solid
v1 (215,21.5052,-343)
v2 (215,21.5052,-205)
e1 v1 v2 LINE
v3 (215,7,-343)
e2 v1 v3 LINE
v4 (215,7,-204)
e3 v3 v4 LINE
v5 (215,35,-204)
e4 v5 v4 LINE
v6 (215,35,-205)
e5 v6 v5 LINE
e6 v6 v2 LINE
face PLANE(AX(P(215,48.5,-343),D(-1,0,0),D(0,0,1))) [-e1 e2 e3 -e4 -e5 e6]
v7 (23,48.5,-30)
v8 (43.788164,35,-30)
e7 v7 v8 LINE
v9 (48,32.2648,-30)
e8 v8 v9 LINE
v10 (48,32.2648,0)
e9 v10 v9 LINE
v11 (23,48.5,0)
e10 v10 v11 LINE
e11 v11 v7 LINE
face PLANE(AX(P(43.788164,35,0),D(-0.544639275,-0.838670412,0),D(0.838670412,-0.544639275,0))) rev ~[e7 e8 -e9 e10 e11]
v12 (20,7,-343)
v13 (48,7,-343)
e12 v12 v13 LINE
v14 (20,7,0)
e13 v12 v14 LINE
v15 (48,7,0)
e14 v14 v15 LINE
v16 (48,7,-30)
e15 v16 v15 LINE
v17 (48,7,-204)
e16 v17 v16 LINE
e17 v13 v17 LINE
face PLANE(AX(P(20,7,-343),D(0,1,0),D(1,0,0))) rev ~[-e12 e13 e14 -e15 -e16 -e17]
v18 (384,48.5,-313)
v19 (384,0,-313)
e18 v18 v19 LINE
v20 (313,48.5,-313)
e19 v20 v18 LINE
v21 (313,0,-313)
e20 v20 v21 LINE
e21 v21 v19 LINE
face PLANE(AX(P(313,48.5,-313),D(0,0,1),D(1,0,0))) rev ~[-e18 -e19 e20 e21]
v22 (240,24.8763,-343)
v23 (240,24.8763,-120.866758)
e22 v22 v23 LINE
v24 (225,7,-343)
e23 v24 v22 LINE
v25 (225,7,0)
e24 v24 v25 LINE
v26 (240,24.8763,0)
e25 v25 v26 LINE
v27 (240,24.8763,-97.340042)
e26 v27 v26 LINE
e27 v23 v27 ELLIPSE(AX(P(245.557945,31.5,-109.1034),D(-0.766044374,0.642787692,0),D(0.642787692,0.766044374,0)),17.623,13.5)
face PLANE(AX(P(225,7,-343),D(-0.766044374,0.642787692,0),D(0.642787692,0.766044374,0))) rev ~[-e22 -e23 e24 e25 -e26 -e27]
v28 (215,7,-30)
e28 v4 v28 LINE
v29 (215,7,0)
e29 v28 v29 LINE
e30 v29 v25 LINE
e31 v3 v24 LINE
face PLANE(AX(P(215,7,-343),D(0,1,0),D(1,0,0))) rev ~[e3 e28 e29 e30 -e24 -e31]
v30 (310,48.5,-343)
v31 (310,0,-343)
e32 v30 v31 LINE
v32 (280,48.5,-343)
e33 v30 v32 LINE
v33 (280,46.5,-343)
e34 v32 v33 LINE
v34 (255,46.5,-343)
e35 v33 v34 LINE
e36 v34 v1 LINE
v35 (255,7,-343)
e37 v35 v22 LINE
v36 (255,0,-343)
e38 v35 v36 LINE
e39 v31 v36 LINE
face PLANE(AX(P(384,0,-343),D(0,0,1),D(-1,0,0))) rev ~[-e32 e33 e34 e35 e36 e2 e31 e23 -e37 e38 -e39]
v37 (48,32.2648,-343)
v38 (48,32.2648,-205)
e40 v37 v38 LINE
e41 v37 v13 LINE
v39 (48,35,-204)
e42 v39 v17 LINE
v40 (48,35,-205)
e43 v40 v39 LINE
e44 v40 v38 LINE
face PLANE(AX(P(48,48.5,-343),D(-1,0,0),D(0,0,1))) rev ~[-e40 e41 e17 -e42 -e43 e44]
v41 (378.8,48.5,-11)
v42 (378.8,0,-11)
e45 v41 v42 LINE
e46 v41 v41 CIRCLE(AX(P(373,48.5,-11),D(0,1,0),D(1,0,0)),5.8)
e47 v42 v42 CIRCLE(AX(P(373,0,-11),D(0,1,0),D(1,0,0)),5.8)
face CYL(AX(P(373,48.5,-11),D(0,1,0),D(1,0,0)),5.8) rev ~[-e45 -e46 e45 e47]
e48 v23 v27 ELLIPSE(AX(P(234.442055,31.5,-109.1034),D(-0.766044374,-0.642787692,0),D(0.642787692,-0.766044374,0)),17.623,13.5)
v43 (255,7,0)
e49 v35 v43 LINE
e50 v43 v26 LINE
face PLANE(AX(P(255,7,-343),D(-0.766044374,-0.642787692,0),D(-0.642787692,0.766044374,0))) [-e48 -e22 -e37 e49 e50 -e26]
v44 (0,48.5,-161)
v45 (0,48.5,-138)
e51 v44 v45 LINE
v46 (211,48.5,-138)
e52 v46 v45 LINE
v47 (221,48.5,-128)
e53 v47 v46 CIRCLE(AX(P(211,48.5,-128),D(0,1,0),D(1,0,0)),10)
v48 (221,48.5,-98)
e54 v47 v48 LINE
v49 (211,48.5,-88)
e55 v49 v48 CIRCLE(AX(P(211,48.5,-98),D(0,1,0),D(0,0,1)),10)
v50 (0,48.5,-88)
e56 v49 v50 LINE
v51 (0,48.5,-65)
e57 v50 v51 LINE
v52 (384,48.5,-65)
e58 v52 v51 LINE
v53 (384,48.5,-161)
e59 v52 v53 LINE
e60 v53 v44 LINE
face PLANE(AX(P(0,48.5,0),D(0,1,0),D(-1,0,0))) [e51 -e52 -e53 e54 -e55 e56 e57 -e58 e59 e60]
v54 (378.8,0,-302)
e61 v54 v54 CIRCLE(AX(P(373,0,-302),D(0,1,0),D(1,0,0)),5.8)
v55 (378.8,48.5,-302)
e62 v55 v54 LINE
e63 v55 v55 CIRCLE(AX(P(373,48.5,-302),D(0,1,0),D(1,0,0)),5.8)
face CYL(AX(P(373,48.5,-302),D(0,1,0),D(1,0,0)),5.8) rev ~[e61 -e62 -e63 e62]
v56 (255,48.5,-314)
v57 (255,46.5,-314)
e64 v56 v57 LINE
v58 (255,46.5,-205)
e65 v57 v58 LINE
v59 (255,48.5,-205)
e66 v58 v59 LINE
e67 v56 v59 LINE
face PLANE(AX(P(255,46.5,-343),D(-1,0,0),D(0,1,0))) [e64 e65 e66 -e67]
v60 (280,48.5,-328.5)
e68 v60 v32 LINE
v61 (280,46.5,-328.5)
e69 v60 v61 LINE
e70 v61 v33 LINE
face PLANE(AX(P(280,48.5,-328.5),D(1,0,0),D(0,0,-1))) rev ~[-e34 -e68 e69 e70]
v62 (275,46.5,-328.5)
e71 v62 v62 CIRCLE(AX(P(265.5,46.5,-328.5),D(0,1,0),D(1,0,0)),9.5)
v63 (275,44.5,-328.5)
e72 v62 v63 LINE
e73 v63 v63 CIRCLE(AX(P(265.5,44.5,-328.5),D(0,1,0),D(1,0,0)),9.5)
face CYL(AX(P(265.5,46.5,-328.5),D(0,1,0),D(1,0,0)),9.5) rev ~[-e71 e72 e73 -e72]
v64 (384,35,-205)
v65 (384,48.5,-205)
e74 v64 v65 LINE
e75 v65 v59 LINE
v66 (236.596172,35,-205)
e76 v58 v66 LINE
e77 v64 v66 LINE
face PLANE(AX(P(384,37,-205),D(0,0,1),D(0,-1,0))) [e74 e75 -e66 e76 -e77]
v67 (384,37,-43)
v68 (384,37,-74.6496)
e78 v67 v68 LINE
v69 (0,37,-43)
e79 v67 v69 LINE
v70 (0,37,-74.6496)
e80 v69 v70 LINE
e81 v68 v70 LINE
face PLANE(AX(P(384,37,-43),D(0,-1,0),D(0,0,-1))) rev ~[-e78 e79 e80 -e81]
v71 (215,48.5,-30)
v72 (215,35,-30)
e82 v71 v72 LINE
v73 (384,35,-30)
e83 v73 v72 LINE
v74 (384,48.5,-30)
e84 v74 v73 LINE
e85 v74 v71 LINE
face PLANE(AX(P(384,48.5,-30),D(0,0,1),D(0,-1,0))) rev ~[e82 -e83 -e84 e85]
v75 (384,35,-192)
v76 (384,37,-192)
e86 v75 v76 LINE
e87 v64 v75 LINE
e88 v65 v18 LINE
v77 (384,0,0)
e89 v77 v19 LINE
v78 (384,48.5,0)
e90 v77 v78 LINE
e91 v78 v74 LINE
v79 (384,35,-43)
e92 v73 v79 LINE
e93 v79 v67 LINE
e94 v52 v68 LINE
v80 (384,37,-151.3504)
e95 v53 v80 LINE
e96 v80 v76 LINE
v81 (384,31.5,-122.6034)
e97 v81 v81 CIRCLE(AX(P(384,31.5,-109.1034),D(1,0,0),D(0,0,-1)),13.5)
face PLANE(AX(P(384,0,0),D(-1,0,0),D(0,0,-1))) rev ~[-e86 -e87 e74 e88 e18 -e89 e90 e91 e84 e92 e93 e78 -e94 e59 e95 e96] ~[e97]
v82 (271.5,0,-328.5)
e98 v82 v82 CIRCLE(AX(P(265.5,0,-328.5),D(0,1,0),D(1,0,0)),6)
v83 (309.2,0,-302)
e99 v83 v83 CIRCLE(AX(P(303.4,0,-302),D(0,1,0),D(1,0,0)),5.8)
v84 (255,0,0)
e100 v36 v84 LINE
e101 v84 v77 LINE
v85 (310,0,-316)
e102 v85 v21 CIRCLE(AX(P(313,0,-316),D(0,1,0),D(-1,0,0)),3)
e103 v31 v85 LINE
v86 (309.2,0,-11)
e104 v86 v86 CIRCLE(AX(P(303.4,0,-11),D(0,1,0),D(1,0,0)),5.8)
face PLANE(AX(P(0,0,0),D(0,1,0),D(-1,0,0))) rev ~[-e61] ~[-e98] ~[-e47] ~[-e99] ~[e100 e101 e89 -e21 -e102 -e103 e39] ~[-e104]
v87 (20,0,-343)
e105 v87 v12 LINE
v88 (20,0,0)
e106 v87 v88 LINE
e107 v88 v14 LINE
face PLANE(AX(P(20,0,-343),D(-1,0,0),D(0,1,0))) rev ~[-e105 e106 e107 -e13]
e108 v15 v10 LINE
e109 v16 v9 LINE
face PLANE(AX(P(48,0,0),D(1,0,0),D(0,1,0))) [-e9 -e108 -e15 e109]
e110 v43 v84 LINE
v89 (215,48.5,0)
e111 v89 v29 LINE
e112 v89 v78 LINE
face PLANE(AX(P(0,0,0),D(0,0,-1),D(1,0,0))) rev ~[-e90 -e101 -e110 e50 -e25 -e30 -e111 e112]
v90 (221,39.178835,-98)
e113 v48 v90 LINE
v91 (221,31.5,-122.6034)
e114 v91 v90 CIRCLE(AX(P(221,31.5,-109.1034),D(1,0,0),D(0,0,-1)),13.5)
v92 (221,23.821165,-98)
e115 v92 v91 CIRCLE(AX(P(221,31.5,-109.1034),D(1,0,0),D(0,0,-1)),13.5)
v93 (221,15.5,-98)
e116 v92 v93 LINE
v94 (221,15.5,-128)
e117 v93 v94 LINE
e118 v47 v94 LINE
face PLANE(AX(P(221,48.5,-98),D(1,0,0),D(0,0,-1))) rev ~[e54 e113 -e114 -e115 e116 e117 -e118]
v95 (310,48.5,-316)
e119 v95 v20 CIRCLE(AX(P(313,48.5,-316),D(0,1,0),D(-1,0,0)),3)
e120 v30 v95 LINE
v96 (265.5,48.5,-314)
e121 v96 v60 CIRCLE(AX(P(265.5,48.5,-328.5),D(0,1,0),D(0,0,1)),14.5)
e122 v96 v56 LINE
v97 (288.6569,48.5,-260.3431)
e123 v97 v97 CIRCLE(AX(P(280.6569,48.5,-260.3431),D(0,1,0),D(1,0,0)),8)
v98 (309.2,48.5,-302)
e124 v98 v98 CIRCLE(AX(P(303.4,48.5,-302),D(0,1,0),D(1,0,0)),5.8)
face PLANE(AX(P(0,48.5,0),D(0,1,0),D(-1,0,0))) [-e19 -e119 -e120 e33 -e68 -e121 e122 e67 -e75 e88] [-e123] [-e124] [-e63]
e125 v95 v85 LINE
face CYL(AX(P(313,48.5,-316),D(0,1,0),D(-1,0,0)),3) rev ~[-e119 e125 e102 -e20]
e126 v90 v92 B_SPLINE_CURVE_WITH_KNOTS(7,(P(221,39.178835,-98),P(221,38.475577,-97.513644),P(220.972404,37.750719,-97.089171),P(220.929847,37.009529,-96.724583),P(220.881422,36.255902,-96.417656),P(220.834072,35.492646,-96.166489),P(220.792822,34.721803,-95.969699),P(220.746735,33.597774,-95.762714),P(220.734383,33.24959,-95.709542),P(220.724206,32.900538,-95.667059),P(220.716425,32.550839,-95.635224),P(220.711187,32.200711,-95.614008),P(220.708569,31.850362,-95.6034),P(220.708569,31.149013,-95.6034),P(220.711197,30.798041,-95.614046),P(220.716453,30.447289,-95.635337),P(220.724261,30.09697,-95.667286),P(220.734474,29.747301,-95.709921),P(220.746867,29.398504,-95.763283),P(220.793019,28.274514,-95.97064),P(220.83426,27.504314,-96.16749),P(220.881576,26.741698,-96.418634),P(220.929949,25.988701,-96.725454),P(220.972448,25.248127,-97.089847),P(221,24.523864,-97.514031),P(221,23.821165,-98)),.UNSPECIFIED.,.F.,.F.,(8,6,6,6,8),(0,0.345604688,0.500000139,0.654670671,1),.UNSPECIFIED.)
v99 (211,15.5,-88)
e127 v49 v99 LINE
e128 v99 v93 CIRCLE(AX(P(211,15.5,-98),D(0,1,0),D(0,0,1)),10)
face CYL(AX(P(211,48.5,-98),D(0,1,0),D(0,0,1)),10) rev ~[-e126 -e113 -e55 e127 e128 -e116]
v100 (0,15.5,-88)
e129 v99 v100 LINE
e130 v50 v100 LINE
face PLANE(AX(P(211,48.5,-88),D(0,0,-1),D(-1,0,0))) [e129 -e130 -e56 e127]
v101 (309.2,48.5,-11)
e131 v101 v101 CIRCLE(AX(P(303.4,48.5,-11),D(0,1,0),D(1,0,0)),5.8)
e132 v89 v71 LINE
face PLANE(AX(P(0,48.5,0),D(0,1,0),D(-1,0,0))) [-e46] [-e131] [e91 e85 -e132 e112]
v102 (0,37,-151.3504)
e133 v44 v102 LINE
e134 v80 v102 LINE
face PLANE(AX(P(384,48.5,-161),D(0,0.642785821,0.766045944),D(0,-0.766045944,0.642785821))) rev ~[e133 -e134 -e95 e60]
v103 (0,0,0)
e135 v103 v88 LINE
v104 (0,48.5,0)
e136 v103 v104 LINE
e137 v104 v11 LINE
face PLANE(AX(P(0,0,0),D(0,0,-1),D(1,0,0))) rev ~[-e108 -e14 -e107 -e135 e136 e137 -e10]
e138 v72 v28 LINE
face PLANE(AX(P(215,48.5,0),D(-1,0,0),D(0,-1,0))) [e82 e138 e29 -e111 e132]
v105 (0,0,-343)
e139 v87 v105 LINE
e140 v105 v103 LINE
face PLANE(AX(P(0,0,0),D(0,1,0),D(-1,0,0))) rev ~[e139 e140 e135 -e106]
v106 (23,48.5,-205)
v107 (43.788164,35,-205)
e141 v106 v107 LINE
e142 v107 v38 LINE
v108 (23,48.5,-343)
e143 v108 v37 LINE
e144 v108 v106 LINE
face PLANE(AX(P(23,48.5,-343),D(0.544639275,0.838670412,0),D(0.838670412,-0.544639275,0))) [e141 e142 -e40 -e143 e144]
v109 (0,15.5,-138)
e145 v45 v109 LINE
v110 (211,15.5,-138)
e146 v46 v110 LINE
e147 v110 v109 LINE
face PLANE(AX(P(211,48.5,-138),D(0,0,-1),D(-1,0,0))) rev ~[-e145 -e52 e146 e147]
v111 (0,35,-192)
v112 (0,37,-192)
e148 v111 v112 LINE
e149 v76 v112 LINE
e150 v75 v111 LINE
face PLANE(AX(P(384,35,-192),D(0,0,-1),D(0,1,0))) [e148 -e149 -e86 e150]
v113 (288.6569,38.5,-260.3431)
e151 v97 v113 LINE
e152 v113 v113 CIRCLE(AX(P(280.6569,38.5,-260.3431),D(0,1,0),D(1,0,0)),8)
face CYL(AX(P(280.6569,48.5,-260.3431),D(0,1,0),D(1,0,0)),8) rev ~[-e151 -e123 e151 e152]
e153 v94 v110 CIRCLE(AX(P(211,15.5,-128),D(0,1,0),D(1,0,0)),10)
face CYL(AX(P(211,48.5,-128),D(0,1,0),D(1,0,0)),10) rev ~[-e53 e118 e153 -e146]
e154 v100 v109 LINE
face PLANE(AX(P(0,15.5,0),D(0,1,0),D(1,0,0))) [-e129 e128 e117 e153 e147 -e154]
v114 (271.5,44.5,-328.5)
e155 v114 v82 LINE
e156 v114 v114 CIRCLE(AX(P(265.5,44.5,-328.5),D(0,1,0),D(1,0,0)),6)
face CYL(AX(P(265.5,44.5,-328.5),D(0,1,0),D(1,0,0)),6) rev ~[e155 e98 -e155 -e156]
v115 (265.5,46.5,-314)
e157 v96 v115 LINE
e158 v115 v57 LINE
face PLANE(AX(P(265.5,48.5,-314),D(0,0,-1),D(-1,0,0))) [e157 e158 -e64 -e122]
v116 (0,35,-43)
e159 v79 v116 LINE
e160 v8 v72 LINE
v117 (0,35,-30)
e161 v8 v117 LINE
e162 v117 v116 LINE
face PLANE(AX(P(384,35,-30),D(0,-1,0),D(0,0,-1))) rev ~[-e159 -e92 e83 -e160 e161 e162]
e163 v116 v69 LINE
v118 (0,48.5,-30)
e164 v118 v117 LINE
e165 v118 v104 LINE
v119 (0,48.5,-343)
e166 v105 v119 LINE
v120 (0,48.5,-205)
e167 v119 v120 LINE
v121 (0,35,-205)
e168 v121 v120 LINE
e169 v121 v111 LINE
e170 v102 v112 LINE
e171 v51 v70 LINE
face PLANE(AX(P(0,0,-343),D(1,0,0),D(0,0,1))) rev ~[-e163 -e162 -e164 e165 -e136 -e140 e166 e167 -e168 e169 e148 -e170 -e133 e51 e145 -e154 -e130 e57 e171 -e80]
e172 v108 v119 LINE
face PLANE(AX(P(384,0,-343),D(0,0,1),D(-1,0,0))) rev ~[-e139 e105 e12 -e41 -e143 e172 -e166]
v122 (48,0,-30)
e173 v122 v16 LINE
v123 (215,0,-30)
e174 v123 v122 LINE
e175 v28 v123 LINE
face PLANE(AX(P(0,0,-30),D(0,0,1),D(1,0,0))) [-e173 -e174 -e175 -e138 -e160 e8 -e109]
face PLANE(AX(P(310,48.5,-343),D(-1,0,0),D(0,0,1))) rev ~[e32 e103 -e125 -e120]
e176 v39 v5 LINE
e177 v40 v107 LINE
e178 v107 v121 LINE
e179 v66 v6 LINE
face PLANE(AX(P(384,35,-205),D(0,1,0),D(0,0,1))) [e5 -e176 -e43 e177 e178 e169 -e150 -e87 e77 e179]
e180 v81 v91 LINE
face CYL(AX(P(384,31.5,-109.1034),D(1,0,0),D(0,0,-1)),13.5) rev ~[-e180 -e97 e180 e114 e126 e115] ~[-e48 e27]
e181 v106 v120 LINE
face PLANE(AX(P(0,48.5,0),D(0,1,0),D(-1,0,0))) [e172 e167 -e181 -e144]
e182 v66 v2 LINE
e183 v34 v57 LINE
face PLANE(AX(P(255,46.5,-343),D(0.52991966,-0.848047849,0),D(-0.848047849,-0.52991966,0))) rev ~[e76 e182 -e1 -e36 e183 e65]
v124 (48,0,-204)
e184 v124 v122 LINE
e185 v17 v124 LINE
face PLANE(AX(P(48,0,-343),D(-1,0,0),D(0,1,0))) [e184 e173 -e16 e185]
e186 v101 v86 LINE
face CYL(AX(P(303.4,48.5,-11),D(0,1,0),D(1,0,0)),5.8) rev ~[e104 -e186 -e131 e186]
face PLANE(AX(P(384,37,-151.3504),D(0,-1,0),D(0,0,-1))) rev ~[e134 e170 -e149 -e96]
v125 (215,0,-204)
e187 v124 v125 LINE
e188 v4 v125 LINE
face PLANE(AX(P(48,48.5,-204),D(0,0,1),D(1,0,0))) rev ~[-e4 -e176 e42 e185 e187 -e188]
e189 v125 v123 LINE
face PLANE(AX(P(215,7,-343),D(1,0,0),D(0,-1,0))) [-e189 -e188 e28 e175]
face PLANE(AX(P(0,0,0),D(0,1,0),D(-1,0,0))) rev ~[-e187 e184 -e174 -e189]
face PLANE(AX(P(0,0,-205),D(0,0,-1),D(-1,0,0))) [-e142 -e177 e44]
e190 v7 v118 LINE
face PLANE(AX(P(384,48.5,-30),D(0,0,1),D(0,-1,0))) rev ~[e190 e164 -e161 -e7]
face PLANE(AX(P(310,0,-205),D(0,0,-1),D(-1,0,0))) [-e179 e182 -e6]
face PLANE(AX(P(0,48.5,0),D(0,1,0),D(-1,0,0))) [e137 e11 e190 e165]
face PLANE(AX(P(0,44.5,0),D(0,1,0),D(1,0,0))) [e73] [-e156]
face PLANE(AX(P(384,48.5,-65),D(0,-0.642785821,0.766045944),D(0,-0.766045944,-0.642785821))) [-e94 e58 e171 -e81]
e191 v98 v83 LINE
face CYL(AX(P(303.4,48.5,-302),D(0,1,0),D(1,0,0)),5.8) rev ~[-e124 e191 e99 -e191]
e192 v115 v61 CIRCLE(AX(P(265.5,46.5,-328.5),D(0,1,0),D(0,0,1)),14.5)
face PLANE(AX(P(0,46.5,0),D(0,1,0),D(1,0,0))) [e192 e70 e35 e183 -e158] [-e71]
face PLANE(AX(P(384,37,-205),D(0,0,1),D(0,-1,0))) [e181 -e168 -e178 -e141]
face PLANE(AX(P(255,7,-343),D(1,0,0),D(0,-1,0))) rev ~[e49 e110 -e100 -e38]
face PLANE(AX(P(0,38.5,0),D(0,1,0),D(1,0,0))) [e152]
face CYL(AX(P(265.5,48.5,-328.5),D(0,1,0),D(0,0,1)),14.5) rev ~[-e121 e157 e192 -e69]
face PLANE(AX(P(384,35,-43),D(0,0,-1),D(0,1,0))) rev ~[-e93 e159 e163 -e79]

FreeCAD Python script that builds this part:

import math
import FreeCAD as App
import Part
import Sketcher
from FreeCAD import Vector
Q = App.Units.Quantity


def add_polygon(sketch, points):
    """Adds a closed chain of lines whose ends are joined by coincident constraints."""
    first, n = sketch.GeometryCount, len(points)
    for a, b in zip(points, points[1:] + points[:1]):
        sketch.addGeometry(Part.LineSegment(App.Vector(*a, 0), App.Vector(*b, 0)), False)
    for i in range(n):
        sketch.addConstraint(Sketcher.Constraint("Coincident", first + i, 2, first + (i + 1) % n, 1))

doc = App.newDocument("Part")
body = doc.addObject("PartDesign::Body", "Body")

sketch1 = body.newObject("Sketcher::SketchObject", "Sketch")
sketch1.AttachmentSupport = (doc.getObject("XZ_Plane"), [""])
sketch1.MapMode = "FlatFace"
add_polygon(sketch1, [(0, -343), (0, 0), (384, 0), (384, -343)])
sketch1.addConstraint(Sketcher.Constraint("Vertical", 0))
sketch1.addConstraint(Sketcher.Constraint("Horizontal", 1))
sketch1.addConstraint(Sketcher.Constraint("Vertical", 2))
sketch1.addConstraint(Sketcher.Constraint("Horizontal", 3))
sketch1.addConstraint(Sketcher.Constraint("Coincident", 0, 2, -1, 1))
sketch1.addConstraint(Sketcher.Constraint("DistanceX", 1, 1, 1, 2, 384.0))
sketch1.addConstraint(Sketcher.Constraint("DistanceY", 0, 1, 0, 2, 343.0))
pad1 = body.newObject("PartDesign::Pad", "Pad")
pad1.Profile = sketch1
pad1.Length = 48.5
pad1.Reversed = True

sketch2 = body.newObject("Sketcher::SketchObject", "Sketch001")
sketch2.AttachmentSupport = (doc.getObject("YZ_Plane"), [""])
sketch2.MapMode = "FlatFace"
sketch2.AttachmentOffset = App.Placement(Vector(0, 0, 384), App.Rotation())
add_polygon(sketch2, [(48.5, -65), (48.5, -30), (35, -30), (35, -43), (37, -43), (37, -74.6496)])
sketch2.addConstraint(Sketcher.Constraint("Vertical", 0))
sketch2.addConstraint(Sketcher.Constraint("Horizontal", 1))
sketch2.addConstraint(Sketcher.Constraint("Vertical", 2))
sketch2.addConstraint(Sketcher.Constraint("Horizontal", 3))
sketch2.addConstraint(Sketcher.Constraint("Vertical", 4))
sketch2.addConstraint(Sketcher.Constraint("DistanceX", 3, 1, 3, 2, 2.0))
sketch2.addConstraint(Sketcher.Constraint("DistanceY", 0, 1, 0, 2, 35.0))
sketch2.addConstraint(Sketcher.Constraint("DistanceY", 2, 2, 2, 1, 13.0))
sketch2.addConstraint(Sketcher.Constraint("DistanceX", -1, 1, 1, 2, 35.0))
sketch2.addConstraint(Sketcher.Constraint("Angle", 5, Q("39.9999 deg")))
sketch2.addConstraint(Sketcher.Constraint("DistanceX", 1, 2, 1, 1, 13.5))
sketch2.addConstraint(Sketcher.Constraint("DistanceY", 0, 2, -1, 1, 30.0))
pocket1 = body.newObject("PartDesign::Pocket", "Pocket")
pocket1.Profile = sketch2
pocket1.Type = "ThroughAll"

sketch3 = body.newObject("Sketcher::SketchObject", "Sketch002")
sketch3.AttachmentSupport = (doc.getObject("YZ_Plane"), [""])
sketch3.MapMode = "FlatFace"
sketch3.AttachmentOffset = App.Placement(Vector(0, 0, 384), App.Rotation())
add_polygon(sketch3, [(48.5, -205), (48.5, -161), (37, -151.3504), (37, -192), (35, -192), (35, -205)])
sketch3.addConstraint(Sketcher.Constraint("Vertical", 0))
sketch3.addConstraint(Sketcher.Constraint("Vertical", 2))
sketch3.addConstraint(Sketcher.Constraint("Horizontal", 3))
sketch3.addConstraint(Sketcher.Constraint("Vertical", 4))
sketch3.addConstraint(Sketcher.Constraint("Horizontal", 5))
sketch3.addConstraint(Sketcher.Constraint("DistanceY", 0, 1, 0, 2, 44.0))
sketch3.addConstraint(Sketcher.Constraint("DistanceX", 3, 2, 3, 1, 2.0))
sketch3.addConstraint(Sketcher.Constraint("DistanceY", 4, 2, 4, 1, 13.0))
sketch3.addConstraint(Sketcher.Constraint("Angle", 1, Q("140.0001 deg")))
sketch3.addConstraint(Sketcher.Constraint("DistanceX", 5, 1, 5, 2, 13.5))
sketch3.addConstraint(Sketcher.Constraint("DistanceY", 0, 2, -1, 1, 161.0))
sketch3.addConstraint(Sketcher.Constraint("DistanceX", -1, 1, 1, 2, 37.0))
pocket2 = body.newObject("PartDesign::Pocket", "Pocket001")
pocket2.Profile = sketch3
pocket2.Type = "ThroughAll"

sketch4 = body.newObject("Sketcher::SketchObject", "Sketch003")
sketch4.AttachmentSupport = (doc.getObject("XZ_Plane"), [""])
sketch4.MapMode = "FlatFace"
sketch4.AttachmentOffset = App.Placement(Vector(0, 0, -48.5), App.Rotation())
sketch4.addGeometry(Part.LineSegment(Vector(384, -343, 0), Vector(310, -343, 0)), False)
sketch4.addGeometry(Part.LineSegment(Vector(310, -343, 0), Vector(310, -316, 0)), False)
sketch4.addGeometry(Part.ArcOfCircle(Part.Circle(Vector(313, -316, 0), Vector(0, 0, 1), 3), math.radians(90), math.radians(180)), False)
sketch4.addGeometry(Part.LineSegment(Vector(313, -313, 0), Vector(384, -313, 0)), False)
sketch4.addGeometry(Part.LineSegment(Vector(384, -313, 0), Vector(384, -343, 0)), False)
sketch4.addConstraint(Sketcher.Constraint("Coincident", 0, 2, 1, 1))
sketch4.addConstraint(Sketcher.Constraint("Tangent", 1, 2, 2, 2))
sketch4.addConstraint(Sketcher.Constraint("Tangent", 2, 1, 3, 1))
sketch4.addConstraint(Sketcher.Constraint("Coincident", 3, 2, 4, 1))
sketch4.addConstraint(Sketcher.Constraint("Coincident", 4, 2, 0, 1))
sketch4.addConstraint(Sketcher.Constraint("Horizontal", 0))
sketch4.addConstraint(Sketcher.Constraint("Vertical", 1))
sketch4.addConstraint(Sketcher.Constraint("Horizontal", 3))
sketch4.addConstraint(Sketcher.Constraint("Vertical", 4))
sketch4.addConstraint(Sketcher.Constraint("Radius", 2, 3.0))
sketch4.addConstraint(Sketcher.Constraint("DistanceY", 4, 2, 4, 1, 30.0))
sketch4.addConstraint(Sketcher.Constraint("DistanceX", 0, 2, 0, 1, 74.0))
sketch4.addConstraint(Sketcher.Constraint("DistanceX", -1, 1, 2, 3, 313.0))
sketch4.addConstraint(Sketcher.Constraint("DistanceY", 2, 3, -1, 1, 316.0))
pocket3 = body.newObject("PartDesign::Pocket", "Pocket002")
pocket3.Profile = sketch4
pocket3.Type = "ThroughAll"
pocket3.Reversed = True

sketch5 = body.newObject("Sketcher::SketchObject", "Sketch004")
sketch5.AttachmentSupport = (doc.getObject("XY_Plane"), [""])
sketch5.MapMode = "FlatFace"
sketch5.AttachmentOffset = App.Placement(Vector(0, 0, -343), App.Rotation())
add_polygon(sketch5, [(215, 0), (215, 7), (225, 7), (240, 24.8763), (255, 7), (255, 0)])
sketch5.addConstraint(Sketcher.Constraint("Vertical", 0))
sketch5.addConstraint(Sketcher.Constraint("Horizontal", 1))
sketch5.addConstraint(Sketcher.Constraint("Vertical", 4))
sketch5.addConstraint(Sketcher.Constraint("Horizontal", 5))
sketch5.addConstraint(Sketcher.Constraint("PointOnObject", 4, 2, -1))
sketch5.addConstraint(Sketcher.Constraint("Horizontal", 1, 2, 3, 2))
sketch5.addConstraint(Sketcher.Constraint("Equal", 2, 3))
sketch5.addConstraint(Sketcher.Constraint("DistanceX", 1, 1, 1, 2, 10.0))
sketch5.addConstraint(Sketcher.Constraint("DistanceX", 5, 2, 5, 1, 40.0))
sketch5.addConstraint(Sketcher.Constraint("DistanceY", 0, 1, 0, 2, 7.0))
sketch5.addConstraint(Sketcher.Constraint("Angle", 2, Q("50 deg")))
sketch5.addConstraint(Sketcher.Constraint("DistanceX", -1, 1, 0, 2, 215.0))
pocket4 = body.newObject("PartDesign::Pocket", "Pocket003")
pocket4.Profile = sketch5
pocket4.Type = "ThroughAll"
pocket4.Reversed = True

sketch6 = body.newObject("Sketcher::SketchObject", "Sketch005")
sketch6.AttachmentSupport = (doc.getObject("XZ_Plane"), [""])
sketch6.MapMode = "FlatFace"
sketch6.AttachmentOffset = App.Placement(Vector(0, 0, -48.5), App.Rotation())
add_polygon(sketch6, [(215, -204), (215, -343), (48, -343), (48, -204)])
sketch6.addConstraint(Sketcher.Constraint("Vertical", 0))
sketch6.addConstraint(Sketcher.Constraint("Horizontal", 1))
sketch6.addConstraint(Sketcher.Constraint("Vertical", 2))
sketch6.addConstraint(Sketcher.Constraint("Horizontal", 3))
sketch6.addConstraint(Sketcher.Constraint("DistanceX", 1, 2, 1, 1, 167.0))
sketch6.addConstraint(Sketcher.Constraint("DistanceY", 0, 2, 0, 1, 139.0))
sketch6.addConstraint(Sketcher.Constraint("DistanceX", -1, 1, 0, 2, 215.0))
sketch6.addConstraint(Sketcher.Constraint("DistanceY", 0, 2, -1, 1, 343.0))
pocket5 = body.newObject("PartDesign::Pocket", "Pocket004")
pocket5.Profile = sketch6
pocket5.Type = "ThroughAll"
pocket5.Reversed = True

sketch7 = body.newObject("Sketcher::SketchObject", "Sketch006")
sketch7.AttachmentSupport = (doc.getObject("XY_Plane"), [""])
sketch7.MapMode = "FlatFace"
sketch7.AttachmentOffset = App.Placement(Vector(0, 0, -343), App.Rotation())
add_polygon(sketch7, [(48, 0), (20, 0), (20, 7), (48, 7)])
sketch7.addConstraint(Sketcher.Constraint("Horizontal", 0))
sketch7.addConstraint(Sketcher.Constraint("Vertical", 1))
sketch7.addConstraint(Sketcher.Constraint("Horizontal", 2))
sketch7.addConstraint(Sketcher.Constraint("Vertical", 3))
sketch7.addConstraint(Sketcher.Constraint("PointOnObject", 0, 2, -1))
sketch7.addConstraint(Sketcher.Constraint("DistanceY", 1, 1, 1, 2, 7.0))
sketch7.addConstraint(Sketcher.Constraint("DistanceX", 0, 2, 0, 1, 28.0))
sketch7.addConstraint(Sketcher.Constraint("DistanceX", -1, 1, 0, 2, 20.0))
pocket6 = body.newObject("PartDesign::Pocket", "Pocket005")
pocket6.Profile = sketch7
pocket6.Type = "ThroughAll"
pocket6.Reversed = True

sketch8 = body.newObject("Sketcher::SketchObject", "Sketch007")
sketch8.AttachmentSupport = (doc.getObject("XZ_Plane"), [""])
sketch8.MapMode = "FlatFace"
sketch8.AttachmentOffset = App.Placement(Vector(0, 0, -48.5), App.Rotation())
sketch8.addGeometry(Part.LineSegment(Vector(221, -98, 0), Vector(221, -128, 0)), False)
sketch8.addGeometry(Part.ArcOfCircle(Part.Circle(Vector(211, -128, 0), Vector(0, 0, 1), 10), math.radians(-90), math.radians(0)), False)
sketch8.addGeometry(Part.LineSegment(Vector(211, -138, 0), Vector(0, -138, 0)), False)
sketch8.addGeometry(Part.LineSegment(Vector(0, -138, 0), Vector(0, -88, 0)), False)
sketch8.addGeometry(Part.LineSegment(Vector(0, -88, 0), Vector(211, -88, 0)), False)
sketch8.addGeometry(Part.ArcOfCircle(Part.Circle(Vector(211, -98, 0), Vector(0, 0, 1), 10), math.radians(0), math.radians(90)), False)
sketch8.addConstraint(Sketcher.Constraint("Tangent", 0, 2, 1, 2))
sketch8.addConstraint(Sketcher.Constraint("Tangent", 1, 1, 2, 1))
sketch8.addConstraint(Sketcher.Constraint("Coincident", 2, 2, 3, 1))
sketch8.addConstraint(Sketcher.Constraint("Coincident", 3, 2, 4, 1))
sketch8.addConstraint(Sketcher.Constraint("Tangent", 4, 2, 5, 2))
sketch8.addConstraint(Sketcher.Constraint("Tangent", 5, 1, 0, 1))
sketch8.addConstraint(Sketcher.Constraint("Vertical", 0))
sketch8.addConstraint(Sketcher.Constraint("Horizontal", 2))
sketch8.addConstraint(Sketcher.Constraint("Vertical", 3))
sketch8.addConstraint(Sketcher.Constraint("Horizontal", 4))
sketch8.addConstraint(Sketcher.Constraint("Equal", 1, 5))
sketch8.addConstraint(Sketcher.Constraint("PointOnObject", 2, 2, -2))
sketch8.addConstraint(Sketcher.Constraint("Radius", 1, 10.0))
sketch8.addConstraint(Sketcher.Constraint("DistanceX", 2, 2, 2, 1, 211.0))
sketch8.addConstraint(Sketcher.Constraint("DistanceY", 0, 2, 0, 1, 30.0))
sketch8.addConstraint(Sketcher.Constraint("DistanceY", 1, 3, -1, 1, 128.0))
pocket7 = body.newObject("PartDesign::Pocket", "Pocket006")
pocket7.Profile = sketch8
pocket7.Length = 33
pocket7.Reversed = True

sketch9 = body.newObject("Sketcher::SketchObject", "Sketch008")
sketch9.AttachmentSupport = (doc.getObject("YZ_Plane"), [""])
sketch9.MapMode = "FlatFace"
sketch9.AttachmentOffset = App.Placement(Vector(0, 0, 384), App.Rotation())
sketch9.addGeometry(Part.Circle(Vector(31.5, -109.1034, 0), Vector(0, 0, 1), 13.5), False)
sketch9.addConstraint(Sketcher.Constraint("Diameter", 0, 27.0))
sketch9.addConstraint(Sketcher.Constraint("DistanceX", -1, 1, 0, 3, 31.5))
sketch9.addConstraint(Sketcher.Constraint("DistanceY", 0, 3, -1, 1, 109.1034))
pocket8 = body.newObject("PartDesign::Pocket", "Pocket007")
pocket8.Profile = sketch9
pocket8.Type = "ThroughAll"

sketch10 = body.newObject("Sketcher::SketchObject", "Sketch009")
sketch10.AttachmentSupport = (doc.getObject("XY_Plane"), [""])
sketch10.MapMode = "FlatFace"
sketch10.AttachmentOffset = App.Placement(Vector(0, 0, -343), App.Rotation())
add_polygon(sketch10, [(48, 32.2648), (23, 48.5), (48, 48.5)])
sketch10.addConstraint(Sketcher.Constraint("Horizontal", 1))
sketch10.addConstraint(Sketcher.Constraint("Vertical", 2))
sketch10.addConstraint(Sketcher.Constraint("DistanceX", -1, 1, 0, 2, 23.0))
sketch10.addConstraint(Sketcher.Constraint("DistanceX", 1, 1, 1, 2, 25.0))
sketch10.addConstraint(Sketcher.Constraint("Angle", 0, Q("147 deg")))
sketch10.addConstraint(Sketcher.Constraint("DistanceY", -1, 1, 0, 2, 48.5))
pocket9 = body.newObject("PartDesign::Pocket", "Pocket008")
pocket9.Profile = sketch10
pocket9.Length = 138
pocket9.Reversed = True

sketch11 = body.newObject("Sketcher::SketchObject", "Sketch010")
sketch11.AttachmentSupport = (doc.getObject("XY_Plane"), [""])
sketch11.MapMode = "FlatFace"
sketch11.AttachmentOffset = App.Placement(Vector(0, 0, -343), App.Rotation())
add_polygon(sketch11, [(255, 48.5), (255, 46.5), (215, 21.5052), (215, 48.5)])
sketch11.addConstraint(Sketcher.Constraint("Vertical", 0))
sketch11.addConstraint(Sketcher.Constraint("Vertical", 2))
sketch11.addConstraint(Sketcher.Constraint("Horizontal", 3))
sketch11.addConstraint(Sketcher.Constraint("DistanceX", 3, 1, 3, 2, 40.0))
sketch11.addConstraint(Sketcher.Constraint("DistanceY", 0, 2, 0, 1, 2.0))
sketch11.addConstraint(Sketcher.Constraint("Angle", 1, Q("-148 deg")))
sketch11.addConstraint(Sketcher.Constraint("DistanceX", -1, 1, 0, 2, 255.0))
sketch11.addConstraint(Sketcher.Constraint("DistanceY", -1, 1, 0, 2, 46.5))
pocket10 = body.newObject("PartDesign::Pocket", "Pocket009")
pocket10.Profile = sketch11
pocket10.Length = 138
pocket10.Reversed = True

sketch12 = body.newObject("Sketcher::SketchObject", "Sketch011")
sketch12.AttachmentSupport = (doc.getObject("XZ_Plane"), [""])
sketch12.MapMode = "FlatFace"
sketch12.AttachmentOffset = App.Placement(Vector(0, 0, -48.5), App.Rotation())
sketch12.addGeometry(Part.LineSegment(Vector(255, -314, 0), Vector(265.5, -314, 0)), False)
sketch12.addGeometry(Part.ArcOfCircle(Part.Circle(Vector(265.5, -328.5, 0), Vector(0, 0, 1), 14.5), math.radians(0), math.radians(90)), False)
sketch12.addGeometry(Part.LineSegment(Vector(280, -328.5, 0), Vector(280, -343, 0)), False)
sketch12.addGeometry(Part.LineSegment(Vector(280, -343, 0), Vector(255, -343, 0)), False)
sketch12.addGeometry(Part.LineSegment(Vector(255, -343, 0), Vector(255, -314, 0)), False)
sketch12.addConstraint(Sketcher.Constraint("Tangent", 0, 2, 1, 2))
sketch12.addConstraint(Sketcher.Constraint("Tangent", 1, 1, 2, 1))
sketch12.addConstraint(Sketcher.Constraint("Coincident", 2, 2, 3, 1))
sketch12.addConstraint(Sketcher.Constraint("Coincident", 3, 2, 4, 1))
sketch12.addConstraint(Sketcher.Constraint("Coincident", 4, 2, 0, 1))
sketch12.addConstraint(Sketcher.Constraint("Horizontal", 0))
sketch12.addConstraint(Sketcher.Constraint("Vertical", 2))
sketch12.addConstraint(Sketcher.Constraint("Horizontal", 3))
sketch12.addConstraint(Sketcher.Constraint("Vertical", 4))
sketch12.addConstraint(Sketcher.Constraint("Radius", 1, 14.5))
sketch12.addConstraint(Sketcher.Constraint("DistanceX", 3, 2, 3, 1, 25.0))
sketch12.addConstraint(Sketcher.Constraint("DistanceY", 4, 1, 4, 2, 29.0))
sketch12.addConstraint(Sketcher.Constraint("DistanceY", 0, 2, -1, 1, 314.0))
sketch12.addConstraint(Sketcher.Constraint("DistanceX", -1, 1, 1, 1, 280.0))
pocket11 = body.newObject("PartDesign::Pocket", "Pocket010")
pocket11.Profile = sketch12
pocket11.Length = 2
pocket11.Reversed = True

sketch13 = body.newObject("Sketcher::SketchObject", "Sketch012")
sketch13.AttachmentSupport = (doc.getObject("XZ_Plane"), [""])
sketch13.MapMode = "FlatFace"
sketch13.AttachmentOffset = App.Placement(Vector(0, 0, -46.5), App.Rotation())
sketch13.addGeometry(Part.Circle(Vector(265.5, -328.5, 0), Vector(0, 0, 1), 9.5), False)
sketch13.addConstraint(Sketcher.Constraint("Diameter", 0, 19.0))
sketch13.addConstraint(Sketcher.Constraint("DistanceX", -1, 1, 0, 3, 265.5))
sketch13.addConstraint(Sketcher.Constraint("DistanceY", 0, 3, -1, 1, 328.5))
pocket12 = body.newObject("PartDesign::Pocket", "Pocket011")
pocket12.Profile = sketch13
pocket12.Length = 2
pocket12.Reversed = True

sketch14 = body.newObject("Sketcher::SketchObject", "Sketch013")
sketch14.AttachmentSupport = (doc.getObject("XZ_Plane"), [""])
sketch14.MapMode = "FlatFace"
sketch14.AttachmentOffset = App.Placement(Vector(0, 0, -44.5), App.Rotation())
sketch14.addGeometry(Part.Circle(Vector(265.5, -328.5, 0), Vector(0, 0, 1), 6), False)
sketch14.addConstraint(Sketcher.Constraint("Diameter", 0, 12.0))
sketch14.addConstraint(Sketcher.Constraint("DistanceX", -1, 1, 0, 3, 265.5))
sketch14.addConstraint(Sketcher.Constraint("DistanceY", 0, 3, -1, 1, 328.5))
pocket13 = body.newObject("PartDesign::Pocket", "Pocket012")
pocket13.Profile = sketch14
pocket13.Type = "ThroughAll"
pocket13.Reversed = True

sketch15 = body.newObject("Sketcher::SketchObject", "Sketch014")
sketch15.AttachmentSupport = (doc.getObject("XZ_Plane"), [""])
sketch15.MapMode = "FlatFace"
sketch15.AttachmentOffset = App.Placement(Vector(0, 0, -48.5), App.Rotation())
sketch15.addGeometry(Part.Circle(Vector(373, -302, 0), Vector(0, 0, 1), 5.8), False)
sketch15.addGeometry(Part.Circle(Vector(303.4, -302, 0), Vector(0, 0, 1), 5.8), False)
sketch15.addGeometry(Part.Circle(Vector(373, -11, 0), Vector(0, 0, 1), 5.8), False)
sketch15.addGeometry(Part.Circle(Vector(303.4, -11, 0), Vector(0, 0, 1), 5.8), False)
sketch15.addConstraint(Sketcher.Constraint("Equal", 0, 1))
sketch15.addConstraint(Sketcher.Constraint("Equal", 1, 2))
sketch15.addConstraint(Sketcher.Constraint("Equal", 2, 3))
sketch15.addConstraint(Sketcher.Constraint("Horizontal", 0, 3, 1, 3))
sketch15.addConstraint(Sketcher.Constraint("Horizontal", 2, 3, 3, 3))
sketch15.addConstraint(Sketcher.Constraint("Vertical", 0, 3, 2, 3))
sketch15.addConstraint(Sketcher.Constraint("Vertical", 1, 3, 3, 3))
sketch15.addConstraint(Sketcher.Constraint("Diameter", 0, 11.6))
sketch15.addConstraint(Sketcher.Constraint("DistanceX", -1, 1, 0, 3, 373.0))
sketch15.addConstraint(Sketcher.Constraint("DistanceY", 0, 3, -1, 1, 302.0))
sketch15.addConstraint(Sketcher.Constraint("DistanceY", 2, 3, -1, 1, 11.0))
sketch15.addConstraint(Sketcher.Constraint("DistanceX", -1, 1, 1, 3, 303.4))
pocket14 = body.newObject("PartDesign::Pocket", "Pocket013")
pocket14.Profile = sketch15
pocket14.Type = "ThroughAll"
pocket14.Reversed = True

sketch16 = body.newObject("Sketcher::SketchObject", "Sketch015")
sketch16.AttachmentSupport = (doc.getObject("XY_Plane"), [""])
sketch16.MapMode = "FlatFace"
add_polygon(sketch16, [(48, 32.2648), (48, 48.5), (23, 48.5)])
sketch16.addConstraint(Sketcher.Constraint("Vertical", 0))
sketch16.addConstraint(Sketcher.Constraint("Horizontal", 1))
sketch16.addConstraint(Sketcher.Constraint("DistanceX", 1, 2, 1, 1, 25.0))
sketch16.addConstraint(Sketcher.Constraint("Angle", 2, Q("-33 deg")))
sketch16.addConstraint(Sketcher.Constraint("DistanceX", -1, 1, 0, 2, 48.0))
sketch16.addConstraint(Sketcher.Constraint("DistanceY", -1, 1, 0, 2, 48.5))
pocket15 = body.newObject("PartDesign::Pocket", "Pocket014")
pocket15.Profile = sketch16
pocket15.Length = 30

sketch17 = body.newObject("Sketcher::SketchObject", "Sketch016")
sketch17.AttachmentSupport = (doc.getObject("XY_Plane"), [""])
sketch17.MapMode = "FlatFace"
add_polygon(sketch17, [(215, 48.5), (48, 48.5), (48, 0), (215, 0)])
sketch17.addConstraint(Sketcher.Constraint("Horizontal", 0))
sketch17.addConstraint(Sketcher.Constraint("Vertical", 1))
sketch17.addConstraint(Sketcher.Constraint("Horizontal", 2))
sketch17.addConstraint(Sketcher.Constraint("Vertical", 3))
sketch17.addConstraint(Sketcher.Constraint("PointOnObject", 1, 2, -1))
sketch17.addConstraint(Sketcher.Constraint("DistanceX", 0, 2, 0, 1, 167.0))
sketch17.addConstraint(Sketcher.Constraint("DistanceY", 1, 2, 1, 1, 48.5))
sketch17.addConstraint(Sketcher.Constraint("DistanceX", -1, 1, 0, 2, 48.0))
pocket16 = body.newObject("PartDesign::Pocket", "Pocket015")
pocket16.Profile = sketch17
pocket16.Length = 30

sketch18 = body.newObject("Sketcher::SketchObject", "Sketch017")
sketch18.AttachmentSupport = (doc.getObject("XZ_Plane"), [""])
sketch18.MapMode = "FlatFace"
sketch18.AttachmentOffset = App.Placement(Vector(0, 0, -48.5), App.Rotation())
sketch18.addGeometry(Part.Circle(Vector(280.6569, -260.3431, 0), Vector(0, 0, 1), 8), False)
sketch18.addConstraint(Sketcher.Constraint("Diameter", 0, 16.0))
sketch18.addConstraint(Sketcher.Constraint("DistanceX", -1, 1, 0, 3, 280.657))
sketch18.addConstraint(Sketcher.Constraint("DistanceY", 0, 3, -1, 1, 260.343))
pocket17 = body.newObject("PartDesign::Pocket", "Pocket016")
pocket17.Profile = sketch18
pocket17.Length = 10
pocket17.Reversed = True

doc.recompute()
